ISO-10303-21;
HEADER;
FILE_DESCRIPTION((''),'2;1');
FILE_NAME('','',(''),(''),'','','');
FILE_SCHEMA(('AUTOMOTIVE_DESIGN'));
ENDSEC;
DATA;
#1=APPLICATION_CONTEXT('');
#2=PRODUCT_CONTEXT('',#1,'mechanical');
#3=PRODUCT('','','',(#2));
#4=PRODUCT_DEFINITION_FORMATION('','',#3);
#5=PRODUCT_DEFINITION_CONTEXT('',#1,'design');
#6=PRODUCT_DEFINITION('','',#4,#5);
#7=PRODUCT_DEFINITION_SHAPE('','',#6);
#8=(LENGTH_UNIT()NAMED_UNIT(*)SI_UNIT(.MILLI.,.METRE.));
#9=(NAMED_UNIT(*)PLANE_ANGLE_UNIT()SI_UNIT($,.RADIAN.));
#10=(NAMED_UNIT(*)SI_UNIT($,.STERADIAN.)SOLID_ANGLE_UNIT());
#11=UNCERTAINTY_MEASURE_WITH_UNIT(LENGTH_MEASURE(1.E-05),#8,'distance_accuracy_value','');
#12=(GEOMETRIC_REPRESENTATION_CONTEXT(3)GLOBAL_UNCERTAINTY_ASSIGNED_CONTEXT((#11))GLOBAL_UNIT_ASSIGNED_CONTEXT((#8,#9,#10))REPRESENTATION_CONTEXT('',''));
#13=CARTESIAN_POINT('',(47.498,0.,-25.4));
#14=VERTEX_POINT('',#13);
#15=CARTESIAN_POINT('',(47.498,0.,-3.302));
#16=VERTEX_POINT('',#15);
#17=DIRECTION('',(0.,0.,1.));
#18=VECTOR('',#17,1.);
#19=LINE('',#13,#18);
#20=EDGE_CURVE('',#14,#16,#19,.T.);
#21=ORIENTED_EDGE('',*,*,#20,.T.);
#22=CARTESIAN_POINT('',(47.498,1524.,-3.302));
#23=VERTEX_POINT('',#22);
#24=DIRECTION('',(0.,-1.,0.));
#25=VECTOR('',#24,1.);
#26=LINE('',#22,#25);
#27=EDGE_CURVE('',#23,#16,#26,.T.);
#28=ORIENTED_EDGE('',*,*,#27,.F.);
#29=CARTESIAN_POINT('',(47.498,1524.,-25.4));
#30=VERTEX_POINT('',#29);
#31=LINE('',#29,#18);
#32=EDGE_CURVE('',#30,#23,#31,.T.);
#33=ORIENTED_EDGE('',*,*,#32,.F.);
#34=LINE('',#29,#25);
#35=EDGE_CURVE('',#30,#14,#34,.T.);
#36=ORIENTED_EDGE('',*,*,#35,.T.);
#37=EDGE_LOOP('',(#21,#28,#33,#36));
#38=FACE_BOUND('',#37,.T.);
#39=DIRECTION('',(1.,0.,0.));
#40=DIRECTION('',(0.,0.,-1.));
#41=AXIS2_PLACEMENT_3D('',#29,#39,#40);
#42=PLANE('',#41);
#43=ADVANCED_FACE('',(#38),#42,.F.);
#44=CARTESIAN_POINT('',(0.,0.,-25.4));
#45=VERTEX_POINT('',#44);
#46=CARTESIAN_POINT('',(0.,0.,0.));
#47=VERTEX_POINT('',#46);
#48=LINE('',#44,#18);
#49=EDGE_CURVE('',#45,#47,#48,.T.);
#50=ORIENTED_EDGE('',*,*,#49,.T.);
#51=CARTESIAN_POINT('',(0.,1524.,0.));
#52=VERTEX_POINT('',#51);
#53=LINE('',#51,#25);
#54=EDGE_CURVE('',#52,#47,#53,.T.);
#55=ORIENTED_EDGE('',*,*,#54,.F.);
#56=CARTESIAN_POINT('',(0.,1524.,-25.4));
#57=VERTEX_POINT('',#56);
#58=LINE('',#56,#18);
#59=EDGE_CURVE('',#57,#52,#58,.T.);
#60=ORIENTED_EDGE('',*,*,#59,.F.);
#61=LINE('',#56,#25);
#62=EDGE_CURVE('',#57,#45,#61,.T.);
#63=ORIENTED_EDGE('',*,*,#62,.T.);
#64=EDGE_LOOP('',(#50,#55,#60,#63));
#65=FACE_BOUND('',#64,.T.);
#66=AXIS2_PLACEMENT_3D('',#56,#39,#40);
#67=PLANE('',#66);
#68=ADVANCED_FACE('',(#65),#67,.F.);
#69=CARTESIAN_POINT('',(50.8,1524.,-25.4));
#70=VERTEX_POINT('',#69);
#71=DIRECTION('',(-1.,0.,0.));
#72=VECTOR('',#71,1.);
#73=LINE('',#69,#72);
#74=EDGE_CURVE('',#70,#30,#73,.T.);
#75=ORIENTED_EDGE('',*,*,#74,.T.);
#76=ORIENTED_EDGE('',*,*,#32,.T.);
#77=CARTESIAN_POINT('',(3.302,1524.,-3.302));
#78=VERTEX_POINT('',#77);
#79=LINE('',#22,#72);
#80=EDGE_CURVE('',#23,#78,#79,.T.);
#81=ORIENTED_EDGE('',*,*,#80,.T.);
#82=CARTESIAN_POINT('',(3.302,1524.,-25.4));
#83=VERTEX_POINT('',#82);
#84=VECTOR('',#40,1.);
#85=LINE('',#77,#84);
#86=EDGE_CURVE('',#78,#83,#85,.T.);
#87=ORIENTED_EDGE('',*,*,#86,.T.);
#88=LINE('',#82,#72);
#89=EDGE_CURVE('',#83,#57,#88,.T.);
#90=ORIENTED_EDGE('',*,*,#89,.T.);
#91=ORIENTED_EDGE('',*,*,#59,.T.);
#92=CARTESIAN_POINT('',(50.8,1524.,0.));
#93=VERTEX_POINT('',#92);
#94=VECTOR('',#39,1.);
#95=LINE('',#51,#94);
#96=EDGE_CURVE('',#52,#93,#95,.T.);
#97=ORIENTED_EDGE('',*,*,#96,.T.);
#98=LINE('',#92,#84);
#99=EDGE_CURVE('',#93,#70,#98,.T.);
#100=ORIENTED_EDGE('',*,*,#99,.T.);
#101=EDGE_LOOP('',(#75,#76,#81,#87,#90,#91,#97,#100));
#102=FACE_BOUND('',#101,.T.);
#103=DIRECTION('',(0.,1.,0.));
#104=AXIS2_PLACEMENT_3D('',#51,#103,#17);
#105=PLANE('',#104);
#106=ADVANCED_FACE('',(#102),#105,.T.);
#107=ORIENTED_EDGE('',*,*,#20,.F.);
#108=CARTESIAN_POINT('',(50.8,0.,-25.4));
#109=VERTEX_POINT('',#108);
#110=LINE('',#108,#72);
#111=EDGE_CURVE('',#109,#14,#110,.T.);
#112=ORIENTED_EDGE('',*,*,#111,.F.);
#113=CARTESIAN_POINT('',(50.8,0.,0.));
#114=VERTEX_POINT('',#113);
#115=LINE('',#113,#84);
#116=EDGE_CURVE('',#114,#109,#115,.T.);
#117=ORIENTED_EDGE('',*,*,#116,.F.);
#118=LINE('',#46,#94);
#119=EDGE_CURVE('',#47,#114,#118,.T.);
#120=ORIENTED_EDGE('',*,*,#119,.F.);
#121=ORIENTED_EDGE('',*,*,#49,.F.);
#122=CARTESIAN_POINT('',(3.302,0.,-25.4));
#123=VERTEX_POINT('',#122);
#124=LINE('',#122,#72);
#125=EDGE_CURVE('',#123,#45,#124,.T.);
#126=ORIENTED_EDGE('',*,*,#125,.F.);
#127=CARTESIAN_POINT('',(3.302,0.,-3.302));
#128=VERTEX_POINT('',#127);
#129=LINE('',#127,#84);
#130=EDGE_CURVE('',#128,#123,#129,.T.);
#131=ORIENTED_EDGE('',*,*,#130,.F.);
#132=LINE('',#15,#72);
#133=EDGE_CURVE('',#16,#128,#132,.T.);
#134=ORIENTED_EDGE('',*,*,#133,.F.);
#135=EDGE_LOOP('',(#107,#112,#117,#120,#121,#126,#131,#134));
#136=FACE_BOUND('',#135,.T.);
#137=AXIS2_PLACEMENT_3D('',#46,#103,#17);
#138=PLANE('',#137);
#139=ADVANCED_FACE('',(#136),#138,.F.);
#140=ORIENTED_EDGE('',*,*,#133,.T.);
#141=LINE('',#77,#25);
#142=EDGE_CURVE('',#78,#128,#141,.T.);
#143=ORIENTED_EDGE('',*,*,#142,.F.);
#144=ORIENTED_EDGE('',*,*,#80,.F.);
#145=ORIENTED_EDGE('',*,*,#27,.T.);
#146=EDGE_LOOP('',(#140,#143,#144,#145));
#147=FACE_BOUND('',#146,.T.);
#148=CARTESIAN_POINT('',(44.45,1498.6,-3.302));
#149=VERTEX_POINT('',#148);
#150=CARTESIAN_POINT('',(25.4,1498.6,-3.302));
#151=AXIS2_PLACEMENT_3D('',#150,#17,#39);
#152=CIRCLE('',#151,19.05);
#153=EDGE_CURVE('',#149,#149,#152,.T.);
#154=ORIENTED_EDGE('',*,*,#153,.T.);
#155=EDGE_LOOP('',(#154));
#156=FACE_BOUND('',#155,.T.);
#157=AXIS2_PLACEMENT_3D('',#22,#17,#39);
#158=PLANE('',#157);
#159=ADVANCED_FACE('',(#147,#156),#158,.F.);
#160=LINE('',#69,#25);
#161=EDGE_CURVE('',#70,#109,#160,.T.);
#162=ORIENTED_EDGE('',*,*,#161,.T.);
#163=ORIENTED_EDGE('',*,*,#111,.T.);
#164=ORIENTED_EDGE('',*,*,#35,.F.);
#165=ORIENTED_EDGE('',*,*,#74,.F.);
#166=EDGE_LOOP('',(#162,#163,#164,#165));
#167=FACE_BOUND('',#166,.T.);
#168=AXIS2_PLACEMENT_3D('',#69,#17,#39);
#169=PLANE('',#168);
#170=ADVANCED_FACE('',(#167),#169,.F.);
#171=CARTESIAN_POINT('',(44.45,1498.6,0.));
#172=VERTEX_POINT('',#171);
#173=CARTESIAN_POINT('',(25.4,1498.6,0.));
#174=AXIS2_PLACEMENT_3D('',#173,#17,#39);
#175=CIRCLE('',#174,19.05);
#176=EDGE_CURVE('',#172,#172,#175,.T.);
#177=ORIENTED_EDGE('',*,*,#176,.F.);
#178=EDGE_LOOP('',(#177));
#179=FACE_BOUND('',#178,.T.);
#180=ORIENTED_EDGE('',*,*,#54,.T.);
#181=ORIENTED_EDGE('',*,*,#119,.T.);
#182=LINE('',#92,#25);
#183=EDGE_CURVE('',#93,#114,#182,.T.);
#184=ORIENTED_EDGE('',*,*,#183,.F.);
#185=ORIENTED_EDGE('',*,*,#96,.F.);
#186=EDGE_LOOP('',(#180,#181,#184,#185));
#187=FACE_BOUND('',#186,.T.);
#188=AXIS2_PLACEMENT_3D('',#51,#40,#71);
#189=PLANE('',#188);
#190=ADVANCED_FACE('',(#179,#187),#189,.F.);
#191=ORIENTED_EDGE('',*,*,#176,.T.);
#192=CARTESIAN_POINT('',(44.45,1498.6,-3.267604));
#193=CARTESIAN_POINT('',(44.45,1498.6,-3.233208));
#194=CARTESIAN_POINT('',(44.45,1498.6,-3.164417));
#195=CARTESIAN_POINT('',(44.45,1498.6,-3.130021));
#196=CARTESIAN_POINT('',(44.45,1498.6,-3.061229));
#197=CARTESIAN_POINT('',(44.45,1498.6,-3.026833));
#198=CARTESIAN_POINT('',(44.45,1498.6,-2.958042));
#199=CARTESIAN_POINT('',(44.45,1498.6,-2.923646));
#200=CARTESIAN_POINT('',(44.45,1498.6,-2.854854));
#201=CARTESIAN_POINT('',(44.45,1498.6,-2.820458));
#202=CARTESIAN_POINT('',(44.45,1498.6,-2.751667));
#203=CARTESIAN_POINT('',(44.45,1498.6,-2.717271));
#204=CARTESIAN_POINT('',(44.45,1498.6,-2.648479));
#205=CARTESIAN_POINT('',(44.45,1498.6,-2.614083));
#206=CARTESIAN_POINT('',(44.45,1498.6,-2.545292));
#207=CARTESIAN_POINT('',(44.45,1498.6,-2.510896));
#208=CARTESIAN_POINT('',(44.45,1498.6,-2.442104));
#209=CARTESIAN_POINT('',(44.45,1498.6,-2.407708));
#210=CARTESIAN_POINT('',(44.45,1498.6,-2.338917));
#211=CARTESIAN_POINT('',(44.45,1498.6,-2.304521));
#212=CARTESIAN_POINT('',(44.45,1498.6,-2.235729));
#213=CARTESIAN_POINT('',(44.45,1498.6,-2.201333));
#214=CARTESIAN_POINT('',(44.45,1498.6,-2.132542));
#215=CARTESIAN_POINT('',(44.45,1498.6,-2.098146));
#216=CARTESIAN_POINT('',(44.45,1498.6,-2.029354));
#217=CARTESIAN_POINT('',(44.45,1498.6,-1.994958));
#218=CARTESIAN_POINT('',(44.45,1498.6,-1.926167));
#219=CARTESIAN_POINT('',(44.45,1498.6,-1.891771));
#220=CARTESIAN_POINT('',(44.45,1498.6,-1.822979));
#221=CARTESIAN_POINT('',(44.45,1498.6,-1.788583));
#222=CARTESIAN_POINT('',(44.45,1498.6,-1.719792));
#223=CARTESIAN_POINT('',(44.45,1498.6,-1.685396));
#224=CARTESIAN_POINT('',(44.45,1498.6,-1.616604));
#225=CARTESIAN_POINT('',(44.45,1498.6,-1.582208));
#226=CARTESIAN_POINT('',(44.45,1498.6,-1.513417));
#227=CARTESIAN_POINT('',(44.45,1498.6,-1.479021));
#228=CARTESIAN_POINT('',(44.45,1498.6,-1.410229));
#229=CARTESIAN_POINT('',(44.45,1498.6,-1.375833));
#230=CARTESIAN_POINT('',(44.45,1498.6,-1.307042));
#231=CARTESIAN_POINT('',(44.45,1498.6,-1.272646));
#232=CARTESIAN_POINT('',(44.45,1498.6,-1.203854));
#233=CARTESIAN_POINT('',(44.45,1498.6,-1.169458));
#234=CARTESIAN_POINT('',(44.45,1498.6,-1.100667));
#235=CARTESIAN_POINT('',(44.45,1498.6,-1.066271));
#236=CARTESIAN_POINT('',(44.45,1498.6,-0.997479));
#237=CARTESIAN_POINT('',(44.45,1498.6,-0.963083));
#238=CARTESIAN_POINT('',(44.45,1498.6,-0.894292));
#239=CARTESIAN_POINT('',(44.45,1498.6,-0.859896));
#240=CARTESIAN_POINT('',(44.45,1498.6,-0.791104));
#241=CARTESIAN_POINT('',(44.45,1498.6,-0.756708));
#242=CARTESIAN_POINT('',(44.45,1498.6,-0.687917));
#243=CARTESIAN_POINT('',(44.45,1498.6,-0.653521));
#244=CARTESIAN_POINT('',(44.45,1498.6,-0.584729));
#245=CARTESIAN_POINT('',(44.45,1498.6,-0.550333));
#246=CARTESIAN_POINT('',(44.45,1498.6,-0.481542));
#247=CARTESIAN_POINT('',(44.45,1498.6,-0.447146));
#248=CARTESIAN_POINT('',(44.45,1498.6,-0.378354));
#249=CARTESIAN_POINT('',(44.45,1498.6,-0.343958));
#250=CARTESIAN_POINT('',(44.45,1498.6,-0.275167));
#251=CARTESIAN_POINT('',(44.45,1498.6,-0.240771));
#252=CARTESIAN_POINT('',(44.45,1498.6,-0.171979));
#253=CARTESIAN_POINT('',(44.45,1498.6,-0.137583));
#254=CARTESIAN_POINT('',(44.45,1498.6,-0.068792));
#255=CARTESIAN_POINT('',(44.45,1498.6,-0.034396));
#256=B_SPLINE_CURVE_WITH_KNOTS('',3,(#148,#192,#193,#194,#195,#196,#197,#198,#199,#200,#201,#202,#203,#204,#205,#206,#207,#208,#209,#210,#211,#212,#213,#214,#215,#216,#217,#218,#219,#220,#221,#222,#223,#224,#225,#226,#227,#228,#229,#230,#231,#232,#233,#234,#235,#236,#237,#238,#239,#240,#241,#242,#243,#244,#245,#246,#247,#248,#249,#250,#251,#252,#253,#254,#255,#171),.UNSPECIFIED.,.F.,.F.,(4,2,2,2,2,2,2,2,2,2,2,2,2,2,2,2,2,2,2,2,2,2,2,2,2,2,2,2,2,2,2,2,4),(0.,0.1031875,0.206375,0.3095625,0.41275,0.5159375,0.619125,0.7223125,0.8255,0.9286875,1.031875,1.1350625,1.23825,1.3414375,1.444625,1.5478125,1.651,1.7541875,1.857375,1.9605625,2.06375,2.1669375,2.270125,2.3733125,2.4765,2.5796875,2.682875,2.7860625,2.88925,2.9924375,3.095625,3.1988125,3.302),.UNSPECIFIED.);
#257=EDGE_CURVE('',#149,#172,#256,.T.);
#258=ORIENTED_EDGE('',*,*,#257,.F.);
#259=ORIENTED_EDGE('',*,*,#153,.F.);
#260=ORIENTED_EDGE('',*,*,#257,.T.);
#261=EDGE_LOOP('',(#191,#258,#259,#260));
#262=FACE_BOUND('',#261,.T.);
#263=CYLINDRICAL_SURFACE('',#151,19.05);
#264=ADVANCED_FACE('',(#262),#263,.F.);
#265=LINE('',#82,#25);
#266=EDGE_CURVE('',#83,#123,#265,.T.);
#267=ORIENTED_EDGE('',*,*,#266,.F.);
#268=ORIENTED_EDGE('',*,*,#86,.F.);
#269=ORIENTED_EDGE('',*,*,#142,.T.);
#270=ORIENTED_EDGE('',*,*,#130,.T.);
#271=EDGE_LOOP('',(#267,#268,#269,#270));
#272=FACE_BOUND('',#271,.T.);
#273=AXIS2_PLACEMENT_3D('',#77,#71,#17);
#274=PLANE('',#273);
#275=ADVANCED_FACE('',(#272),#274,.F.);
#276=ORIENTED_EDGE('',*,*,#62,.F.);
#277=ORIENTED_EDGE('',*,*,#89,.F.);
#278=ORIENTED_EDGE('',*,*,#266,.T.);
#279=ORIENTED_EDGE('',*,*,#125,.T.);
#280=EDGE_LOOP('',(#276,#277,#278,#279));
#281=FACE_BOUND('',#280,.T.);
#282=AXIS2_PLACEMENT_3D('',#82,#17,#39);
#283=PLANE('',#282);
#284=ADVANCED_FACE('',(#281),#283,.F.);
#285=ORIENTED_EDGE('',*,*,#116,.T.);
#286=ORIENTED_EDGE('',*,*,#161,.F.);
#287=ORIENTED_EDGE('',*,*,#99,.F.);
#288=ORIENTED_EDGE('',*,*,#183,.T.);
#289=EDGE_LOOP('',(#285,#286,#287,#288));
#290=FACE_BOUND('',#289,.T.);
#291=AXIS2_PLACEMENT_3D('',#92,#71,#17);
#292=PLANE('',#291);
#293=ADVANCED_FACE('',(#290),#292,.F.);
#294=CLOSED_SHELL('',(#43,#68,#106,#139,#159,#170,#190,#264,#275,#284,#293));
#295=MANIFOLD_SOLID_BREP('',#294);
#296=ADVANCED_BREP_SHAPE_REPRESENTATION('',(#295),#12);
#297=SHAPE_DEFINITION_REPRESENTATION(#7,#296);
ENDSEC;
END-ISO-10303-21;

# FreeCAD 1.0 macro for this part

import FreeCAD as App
import Part
import Sketcher
from FreeCAD import Vector
Q = App.Units.Quantity


def add_polygon(sketch, points):
    """Adds a closed chain of lines whose ends are joined by coincident constraints."""
    first, n = sketch.GeometryCount, len(points)
    for a, b in zip(points, points[1:] + points[:1]):
        sketch.addGeometry(Part.LineSegment(App.Vector(*a, 0), App.Vector(*b, 0)), False)
    for i in range(n):
        sketch.addConstraint(Sketcher.Constraint("Coincident", first + i, 2, first + (i + 1) % n, 1))

doc = App.newDocument("Part")
body = doc.addObject("PartDesign::Body", "Body")

sketch1 = body.newObject("Sketcher::SketchObject", "Sketch")
sketch1.AttachmentSupport = (doc.getObject("XZ_Plane"), [""])
sketch1.MapMode = "FlatFace"
add_polygon(sketch1, [(0, 0), (50.8, 0), (50.8, -25.4), (47.5, -25.4), (47.5, -3.3), (3.3, -3.3), (3.3, -25.4), (0, -25.4)])
sketch1.addConstraint([
    Sketcher.Constraint("Horizontal", 0),
    Sketcher.Constraint("Vertical", 1),
    Sketcher.Constraint("Horizontal", 2),
    Sketcher.Constraint("Vertical", 3),
    Sketcher.Constraint("Horizontal", 4),
    Sketcher.Constraint("Vertical", 5),
    Sketcher.Constraint("Horizontal", 6),
    Sketcher.Constraint("Vertical", 7),
    Sketcher.Constraint("Coincident", 7, 2, -1, 1),
    Sketcher.Constraint("Horizontal", 2, 2, 5, 2),
    Sketcher.Constraint("Equal", 2, 6),
    Sketcher.Constraint("DistanceX", 0, 1, 0, 2, Q("2 in")),
    Sketcher.Constraint("DistanceY", 1, 2, 1, 1, Q("1 in")),
    Sketcher.Constraint("DistanceX", 2, 2, 2, 1, Q("0.13 in")),
    Sketcher.Constraint("DistanceY", 3, 1, 3, 2, Q("0.87 in")),
])
pad1 = body.newObject("PartDesign::Pad", "Pad")
pad1.Profile = sketch1
pad1.Length = Q("60 in")
pad1.Reversed = True

sketch2 = body.newObject("Sketcher::SketchObject", "Sketch001")
sketch2.AttachmentSupport = (doc.getObject("XY_Plane"), [""])
sketch2.MapMode = "FlatFace"
sketch2.addGeometry(Part.Circle(Vector(25, 1499, 0), Vector(0, 0, 1), 19), False)
sketch2.addConstraint([
    Sketcher.Constraint("Diameter", 0, Q("1.5 in")),
    Sketcher.Constraint("DistanceX", -1, 1, 0, 3, Q("1 in")),
    Sketcher.Constraint("DistanceY", -1, 1, 0, 3, Q("59 in")),
])
pocket1 = body.newObject("PartDesign::Pocket", "Pocket")
pocket1.Profile = sketch2
pocket1.Length = Q("0.13 in")

doc.recompute()
